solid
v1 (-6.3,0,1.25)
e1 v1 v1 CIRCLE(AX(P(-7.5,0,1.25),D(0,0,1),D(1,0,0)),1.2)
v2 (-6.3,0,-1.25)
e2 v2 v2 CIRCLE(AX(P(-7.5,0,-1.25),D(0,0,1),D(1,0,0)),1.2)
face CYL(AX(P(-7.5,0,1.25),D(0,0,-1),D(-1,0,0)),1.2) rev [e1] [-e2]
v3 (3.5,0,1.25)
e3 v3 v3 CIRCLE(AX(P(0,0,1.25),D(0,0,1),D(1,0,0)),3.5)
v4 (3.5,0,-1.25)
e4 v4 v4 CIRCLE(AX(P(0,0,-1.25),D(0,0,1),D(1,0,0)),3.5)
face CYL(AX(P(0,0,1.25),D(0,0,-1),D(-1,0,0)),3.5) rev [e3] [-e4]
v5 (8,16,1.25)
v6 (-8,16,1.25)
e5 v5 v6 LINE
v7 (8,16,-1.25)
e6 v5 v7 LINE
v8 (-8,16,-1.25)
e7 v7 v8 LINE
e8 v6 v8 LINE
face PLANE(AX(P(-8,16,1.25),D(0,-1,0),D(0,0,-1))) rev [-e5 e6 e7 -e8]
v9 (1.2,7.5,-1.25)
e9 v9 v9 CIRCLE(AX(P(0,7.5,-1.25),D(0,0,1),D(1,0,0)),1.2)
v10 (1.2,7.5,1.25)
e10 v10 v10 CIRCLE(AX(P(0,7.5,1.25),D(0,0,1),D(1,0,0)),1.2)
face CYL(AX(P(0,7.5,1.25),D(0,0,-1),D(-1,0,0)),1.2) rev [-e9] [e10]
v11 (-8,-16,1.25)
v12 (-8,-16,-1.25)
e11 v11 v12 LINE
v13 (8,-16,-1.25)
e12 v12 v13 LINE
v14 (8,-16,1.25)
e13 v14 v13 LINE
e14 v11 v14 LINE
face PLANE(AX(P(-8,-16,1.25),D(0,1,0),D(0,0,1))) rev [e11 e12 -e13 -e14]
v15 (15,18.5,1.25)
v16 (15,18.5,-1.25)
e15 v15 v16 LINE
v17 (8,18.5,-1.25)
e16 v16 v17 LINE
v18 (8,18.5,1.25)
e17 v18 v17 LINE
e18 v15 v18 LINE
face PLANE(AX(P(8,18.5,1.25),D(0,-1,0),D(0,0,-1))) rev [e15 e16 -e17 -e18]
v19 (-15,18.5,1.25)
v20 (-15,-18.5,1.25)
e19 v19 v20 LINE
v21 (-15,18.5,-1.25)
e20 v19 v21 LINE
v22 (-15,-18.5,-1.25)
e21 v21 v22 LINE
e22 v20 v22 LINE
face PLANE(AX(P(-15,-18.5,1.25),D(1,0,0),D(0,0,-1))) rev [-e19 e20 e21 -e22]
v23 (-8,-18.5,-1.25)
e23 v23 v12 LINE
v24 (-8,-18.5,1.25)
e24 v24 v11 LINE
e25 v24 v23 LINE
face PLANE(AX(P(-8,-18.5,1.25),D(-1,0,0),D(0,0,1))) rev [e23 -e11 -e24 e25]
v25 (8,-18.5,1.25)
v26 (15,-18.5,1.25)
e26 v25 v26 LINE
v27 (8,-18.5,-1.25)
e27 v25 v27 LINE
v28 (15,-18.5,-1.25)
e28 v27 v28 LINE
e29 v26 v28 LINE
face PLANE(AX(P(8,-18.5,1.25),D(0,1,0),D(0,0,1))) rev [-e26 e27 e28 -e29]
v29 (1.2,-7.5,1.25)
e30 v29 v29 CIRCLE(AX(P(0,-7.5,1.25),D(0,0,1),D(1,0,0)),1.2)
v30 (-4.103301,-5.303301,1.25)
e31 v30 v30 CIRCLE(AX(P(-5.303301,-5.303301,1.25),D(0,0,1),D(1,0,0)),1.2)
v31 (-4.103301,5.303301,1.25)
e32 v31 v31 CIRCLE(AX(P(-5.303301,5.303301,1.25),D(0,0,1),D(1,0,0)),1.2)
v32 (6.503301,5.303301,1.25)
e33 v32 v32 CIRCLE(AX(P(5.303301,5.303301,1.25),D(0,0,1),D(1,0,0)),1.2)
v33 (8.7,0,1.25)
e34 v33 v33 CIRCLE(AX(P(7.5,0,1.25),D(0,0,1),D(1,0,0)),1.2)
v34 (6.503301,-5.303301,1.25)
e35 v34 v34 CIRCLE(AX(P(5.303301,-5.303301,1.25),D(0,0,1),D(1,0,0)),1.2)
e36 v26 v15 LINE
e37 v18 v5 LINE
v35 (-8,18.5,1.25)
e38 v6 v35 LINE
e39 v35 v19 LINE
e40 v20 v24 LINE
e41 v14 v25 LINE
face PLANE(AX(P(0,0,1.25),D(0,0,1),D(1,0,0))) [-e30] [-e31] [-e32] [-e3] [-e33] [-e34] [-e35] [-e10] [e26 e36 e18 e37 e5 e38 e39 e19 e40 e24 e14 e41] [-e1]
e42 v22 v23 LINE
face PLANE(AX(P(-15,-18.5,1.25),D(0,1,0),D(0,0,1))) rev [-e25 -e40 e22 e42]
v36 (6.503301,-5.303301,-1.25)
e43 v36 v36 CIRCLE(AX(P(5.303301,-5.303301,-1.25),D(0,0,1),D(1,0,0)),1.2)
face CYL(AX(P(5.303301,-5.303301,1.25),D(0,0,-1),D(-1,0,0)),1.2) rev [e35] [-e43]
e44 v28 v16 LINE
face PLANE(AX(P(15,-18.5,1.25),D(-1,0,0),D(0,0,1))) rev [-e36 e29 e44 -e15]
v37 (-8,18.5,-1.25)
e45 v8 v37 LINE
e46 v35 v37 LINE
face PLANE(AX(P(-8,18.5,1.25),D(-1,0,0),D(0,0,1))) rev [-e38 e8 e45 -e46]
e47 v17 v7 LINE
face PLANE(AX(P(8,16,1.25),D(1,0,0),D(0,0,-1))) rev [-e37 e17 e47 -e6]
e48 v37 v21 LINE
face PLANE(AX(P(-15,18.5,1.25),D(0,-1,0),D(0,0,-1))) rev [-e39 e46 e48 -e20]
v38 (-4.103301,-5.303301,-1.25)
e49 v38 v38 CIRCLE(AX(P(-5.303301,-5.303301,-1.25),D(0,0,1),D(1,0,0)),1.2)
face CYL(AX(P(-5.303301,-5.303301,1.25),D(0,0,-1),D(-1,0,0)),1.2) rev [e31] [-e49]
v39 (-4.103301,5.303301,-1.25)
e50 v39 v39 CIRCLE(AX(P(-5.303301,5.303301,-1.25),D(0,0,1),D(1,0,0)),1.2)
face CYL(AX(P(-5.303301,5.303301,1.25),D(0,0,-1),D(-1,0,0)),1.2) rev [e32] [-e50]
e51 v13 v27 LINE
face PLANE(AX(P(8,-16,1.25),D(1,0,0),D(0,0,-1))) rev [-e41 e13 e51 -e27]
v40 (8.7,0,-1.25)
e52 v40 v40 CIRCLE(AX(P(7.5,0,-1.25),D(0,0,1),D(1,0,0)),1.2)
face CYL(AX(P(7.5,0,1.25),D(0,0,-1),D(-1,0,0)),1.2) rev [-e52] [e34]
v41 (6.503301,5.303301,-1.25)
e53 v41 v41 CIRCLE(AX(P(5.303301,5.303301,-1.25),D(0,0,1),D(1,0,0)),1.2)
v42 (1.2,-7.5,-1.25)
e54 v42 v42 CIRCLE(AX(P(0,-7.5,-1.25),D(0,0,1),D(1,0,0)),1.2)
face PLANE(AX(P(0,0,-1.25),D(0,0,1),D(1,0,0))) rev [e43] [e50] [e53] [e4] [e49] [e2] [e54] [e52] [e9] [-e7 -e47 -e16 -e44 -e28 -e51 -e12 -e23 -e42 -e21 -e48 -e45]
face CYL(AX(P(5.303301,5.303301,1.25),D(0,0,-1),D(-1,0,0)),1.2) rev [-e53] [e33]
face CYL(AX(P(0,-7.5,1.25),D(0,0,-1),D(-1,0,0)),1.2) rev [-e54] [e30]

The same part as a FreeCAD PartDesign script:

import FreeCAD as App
import Part
import Sketcher
from FreeCAD import Vector

doc = App.newDocument("Part")
body = doc.addObject("PartDesign::Body", "Body")

sketch1 = body.newObject("Sketcher::SketchObject", "Sketch")
sketch1.AttachmentSupport = (doc.getObject("XY_Plane"), [""])
sketch1.MapMode = "FlatFace"
sketch1.addGeometry([
    Part.LineSegment(Vector(-8, 18.5, 0), Vector(-15, 18.5, 0)),
    Part.LineSegment(Vector(-15, 18.5, 0), Vector(-15, -18.5, 0)),
    Part.LineSegment(Vector(-15, -18.5, 0), Vector(-8, -18.5, 0)),
    Part.LineSegment(Vector(-8, -18.5, 0), Vector(-8, -16, 0)),
    Part.LineSegment(Vector(-8, -16, 0), Vector(8, -16, 0)),
    Part.LineSegment(Vector(8, -16, 0), Vector(8, -18.5, 0)),
    Part.LineSegment(Vector(8, -18.5, 0), Vector(15, -18.5, 0)),
    Part.LineSegment(Vector(15, -18.5, 0), Vector(15, 18.5, 0)),
    Part.LineSegment(Vector(15, 18.5, 0), Vector(8, 18.5, 0)),
    Part.LineSegment(Vector(8, 18.5, 0), Vector(8, 16, 0)),
    Part.LineSegment(Vector(8, 16, 0), Vector(-8, 16, 0)),
    Part.LineSegment(Vector(-8, 16, 0), Vector(-8, 18.5, 0)),
    Part.Circle(Vector(5.3, -5.3, 0), Vector(0, 0, 1), 1.2),
    Part.Circle(Vector(0, -7.5, 0), Vector(0, 0, 1), 1.2),
    Part.Circle(Vector(-5.3, -5.3, 0), Vector(0, 0, 1), 1.2),
    Part.Circle(Vector(7.5, 0, 0), Vector(0, 0, 1), 1.2),
    Part.Circle(Vector(5.3, 5.3, 0), Vector(0, 0, 1), 1.2),
    Part.Circle(Vector(0, 0, 0), Vector(0, 0, 1), 3.5),
    Part.Circle(Vector(-7.5, 0, 0), Vector(0, 0, 1), 1.2),
    Part.Circle(Vector(0, 7.5, 0), Vector(0, 0, 1), 1.2),
    Part.Circle(Vector(-5.3, 5.3, 0), Vector(0, 0, 1), 1.2),
], False)
sketch1.addConstraint([
    Sketcher.Constraint("Coincident", 0, 2, 1, 1),
    Sketcher.Constraint("Coincident", 1, 2, 2, 1),
    Sketcher.Constraint("Coincident", 2, 2, 3, 1),
    Sketcher.Constraint("Coincident", 3, 2, 4, 1),
    Sketcher.Constraint("Coincident", 4, 2, 5, 1),
    Sketcher.Constraint("Coincident", 5, 2, 6, 1),
    Sketcher.Constraint("Coincident", 6, 2, 7, 1),
    Sketcher.Constraint("Coincident", 7, 2, 8, 1),
    Sketcher.Constraint("Coincident", 8, 2, 9, 1),
    Sketcher.Constraint("Coincident", 9, 2, 10, 1),
    Sketcher.Constraint("Coincident", 10, 2, 11, 1),
    Sketcher.Constraint("Coincident", 11, 2, 0, 1),
    Sketcher.Constraint("Horizontal", 0),
    Sketcher.Constraint("Vertical", 1),
    Sketcher.Constraint("Horizontal", 2),
    Sketcher.Constraint("Vertical", 3),
    Sketcher.Constraint("Horizontal", 4),
    Sketcher.Constraint("Vertical", 5),
    Sketcher.Constraint("Horizontal", 6),
    Sketcher.Constraint("Vertical", 7),
    Sketcher.Constraint("Horizontal", 8),
    Sketcher.Constraint("Vertical", 9),
    Sketcher.Constraint("Horizontal", 10),
    Sketcher.Constraint("Vertical", 11),
    Sketcher.Constraint("Coincident", 17, 3, -1, 1),
    Sketcher.Constraint("Equal", 12, 13),
    Sketcher.Constraint("Equal", 13, 14),
    Sketcher.Constraint("Equal", 14, 15),
    Sketcher.Constraint("Equal", 15, 16),
    Sketcher.Constraint("Equal", 16, 18),
    Sketcher.Constraint("Equal", 18, 19),
    Sketcher.Constraint("Equal", 19, 20),
    Sketcher.Constraint("Symmetric", 14, 3, 16, 3, -1, 1),
    Sketcher.Constraint("Symmetric", 15, 3, 18, 3, -1, 1),
    Sketcher.Constraint("Symmetric", 13, 3, 19, 3, -1, 1),
    Sketcher.Constraint("Symmetric", 12, 3, 20, 3, -1, 1),
    Sketcher.Constraint("Symmetric", 0, 2, 6, 2, -1, 1),
    Sketcher.Constraint("Symmetric", 2, 2, 8, 2, -1, 1),
    Sketcher.Constraint("Symmetric", 4, 2, 10, 2, -1, 1),
    Sketcher.Constraint("Symmetric", 12, 3, 14, 3, -2),
    Sketcher.Constraint("Symmetric", 2, 2, 5, 2, -2),
    Sketcher.Constraint("PointOnObject", 13, 3, -2),
    Sketcher.Constraint("PointOnObject", 15, 3, -1),
    Sketcher.Constraint("Diameter", 17, 7.0),
    Sketcher.Constraint("Diameter", 12, 2.4),
    Sketcher.Constraint("DistanceX", 0, 2, 0, 1, 7.0),
    Sketcher.Constraint("DistanceX", 4, 1, 4, 2, 16.0),
    Sketcher.Constraint("DistanceY", 1, 2, 1, 1, 37.0),
    Sketcher.Constraint("DistanceY", 3, 1, 3, 2, 2.5),
    Sketcher.Constraint("DistanceY", 19, 3, 0, 2, 11.0),
    Sketcher.Constraint("DistanceX", -1, 1, 15, 3, 7.5),
    Sketcher.Constraint("DistanceX", -1, 1, 12, 3, 5.303301),
    Sketcher.Constraint("DistanceY", 12, 3, -1, 1, 5.303301),
])
pad1 = body.newObject("PartDesign::Pad", "Pad")
pad1.Profile = sketch1
pad1.Length = 2.5
pad1.Midplane = True

doc.recompute()
